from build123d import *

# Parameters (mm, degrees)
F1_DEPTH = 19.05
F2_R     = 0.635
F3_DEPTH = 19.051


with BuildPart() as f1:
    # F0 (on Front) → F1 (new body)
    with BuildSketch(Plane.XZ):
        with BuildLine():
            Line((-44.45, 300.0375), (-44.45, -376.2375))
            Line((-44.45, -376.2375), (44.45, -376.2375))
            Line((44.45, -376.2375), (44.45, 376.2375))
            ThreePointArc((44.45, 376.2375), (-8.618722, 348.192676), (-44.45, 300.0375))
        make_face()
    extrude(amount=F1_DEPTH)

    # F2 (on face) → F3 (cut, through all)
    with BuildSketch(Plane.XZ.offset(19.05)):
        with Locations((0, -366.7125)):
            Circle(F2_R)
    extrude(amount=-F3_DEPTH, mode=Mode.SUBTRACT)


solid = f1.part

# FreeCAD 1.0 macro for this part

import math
import FreeCAD as App
import Part
import Sketcher

V = App.Vector
Q = App.Units.Quantity

doc = App.newDocument("Part")
params = doc.addObject("Spreadsheet::Sheet", "Params")
for row, (alias, value) in enumerate([
    ("sketch1_width", "3.5 in"),
    ("sketch1_height", "26.625 in"),
    ("pad1_length", "0.75 in"),
    ("sketch2_diameter", "0.05 in"),
], start=1):
    params.set(f"A{row}", alias)
    params.set(f"B{row}", "=" + value)
    params.setAlias(f"B{row}", alias)

body = doc.addObject("PartDesign::Body", "Body")

# Sketch on XZ plane
sketch1 = body.newObject("Sketcher::SketchObject", "Sketch")
sketch1.AttachmentSupport = (doc.getObject("XZ_Plane"), [""])
sketch1.MapMode = "FlatFace"
sketch1.addGeometry([
    Part.LineSegment(V(-44, 300, 0), V(-44, -376, 0)),
    Part.LineSegment(V(-44, -376, 0), V(44, -376, 0)),
    Part.LineSegment(V(44, -376, 0), V(44, 376, 0)),
    Part.ArcOfCircle(Part.Circle(V(80, 245, 0), V(0, 0, 1), 136), math.radians(105), math.radians(156)),
], False)
sketch1.addConstraint([
    Sketcher.Constraint("Coincident", 0, 2, 1, 1),
    Sketcher.Constraint("Coincident", 1, 2, 2, 1),
    Sketcher.Constraint("Coincident", 2, 2, 3, 1),
    Sketcher.Constraint("Coincident", 3, 2, 0, 1),
    Sketcher.Constraint("Vertical", 0),
    Sketcher.Constraint("Horizontal", 1),
    Sketcher.Constraint("Vertical", 2),
    Sketcher.Constraint("Symmetric", 0, 2, 2, 2, -1, 1),
    Sketcher.Constraint("DistanceX", 1, 1, 1, 2, Q("3.5 in")),
    Sketcher.Constraint("DistanceY", 3, 2, 2, 2, Q("3 in")),
    Sketcher.Constraint("DistanceY", 0, 2, 0, 1, Q("26.625 in")),
    Sketcher.Constraint("Radius", 3, 136.022026),
])
sketch1.setExpression("Constraints[8]", "Params.sketch1_width")
sketch1.setExpression("Constraints[10]", "Params.sketch1_height")
pad1 = body.newObject("PartDesign::Pad", "Pad")
pad1.Profile = sketch1
pad1.setExpression("Length", "Params.pad1_length")

# Sketch on XZ plane
sketch2 = body.newObject("Sketcher::SketchObject", "Sketch001")
sketch2.AttachmentSupport = (doc.getObject("XZ_Plane"), [""])
sketch2.MapMode = "FlatFace"
sketch2.AttachmentOffset = App.Placement(V(0, 0, 0.75 * 25.4), App.Rotation())
sketch2.addGeometry(Part.Circle(V(0, -366.7, 0), V(0, 0, 1), 0.6), False)
sketch2.addConstraint([
    Sketcher.Constraint("PointOnObject", 0, 3, -2),
    Sketcher.Constraint("Diameter", 0, Q("0.05 in")),
    Sketcher.Constraint("DistanceY", 0, 3, -1, 1, Q("14.4375 in")),
])
sketch2.setExpression("Constraints[1]", "Params.sketch2_diameter")
pocket1 = body.newObject("PartDesign::Pocket", "Pocket")
pocket1.Profile = sketch2
pocket1.Type = "ThroughAll"

doc.recompute()
